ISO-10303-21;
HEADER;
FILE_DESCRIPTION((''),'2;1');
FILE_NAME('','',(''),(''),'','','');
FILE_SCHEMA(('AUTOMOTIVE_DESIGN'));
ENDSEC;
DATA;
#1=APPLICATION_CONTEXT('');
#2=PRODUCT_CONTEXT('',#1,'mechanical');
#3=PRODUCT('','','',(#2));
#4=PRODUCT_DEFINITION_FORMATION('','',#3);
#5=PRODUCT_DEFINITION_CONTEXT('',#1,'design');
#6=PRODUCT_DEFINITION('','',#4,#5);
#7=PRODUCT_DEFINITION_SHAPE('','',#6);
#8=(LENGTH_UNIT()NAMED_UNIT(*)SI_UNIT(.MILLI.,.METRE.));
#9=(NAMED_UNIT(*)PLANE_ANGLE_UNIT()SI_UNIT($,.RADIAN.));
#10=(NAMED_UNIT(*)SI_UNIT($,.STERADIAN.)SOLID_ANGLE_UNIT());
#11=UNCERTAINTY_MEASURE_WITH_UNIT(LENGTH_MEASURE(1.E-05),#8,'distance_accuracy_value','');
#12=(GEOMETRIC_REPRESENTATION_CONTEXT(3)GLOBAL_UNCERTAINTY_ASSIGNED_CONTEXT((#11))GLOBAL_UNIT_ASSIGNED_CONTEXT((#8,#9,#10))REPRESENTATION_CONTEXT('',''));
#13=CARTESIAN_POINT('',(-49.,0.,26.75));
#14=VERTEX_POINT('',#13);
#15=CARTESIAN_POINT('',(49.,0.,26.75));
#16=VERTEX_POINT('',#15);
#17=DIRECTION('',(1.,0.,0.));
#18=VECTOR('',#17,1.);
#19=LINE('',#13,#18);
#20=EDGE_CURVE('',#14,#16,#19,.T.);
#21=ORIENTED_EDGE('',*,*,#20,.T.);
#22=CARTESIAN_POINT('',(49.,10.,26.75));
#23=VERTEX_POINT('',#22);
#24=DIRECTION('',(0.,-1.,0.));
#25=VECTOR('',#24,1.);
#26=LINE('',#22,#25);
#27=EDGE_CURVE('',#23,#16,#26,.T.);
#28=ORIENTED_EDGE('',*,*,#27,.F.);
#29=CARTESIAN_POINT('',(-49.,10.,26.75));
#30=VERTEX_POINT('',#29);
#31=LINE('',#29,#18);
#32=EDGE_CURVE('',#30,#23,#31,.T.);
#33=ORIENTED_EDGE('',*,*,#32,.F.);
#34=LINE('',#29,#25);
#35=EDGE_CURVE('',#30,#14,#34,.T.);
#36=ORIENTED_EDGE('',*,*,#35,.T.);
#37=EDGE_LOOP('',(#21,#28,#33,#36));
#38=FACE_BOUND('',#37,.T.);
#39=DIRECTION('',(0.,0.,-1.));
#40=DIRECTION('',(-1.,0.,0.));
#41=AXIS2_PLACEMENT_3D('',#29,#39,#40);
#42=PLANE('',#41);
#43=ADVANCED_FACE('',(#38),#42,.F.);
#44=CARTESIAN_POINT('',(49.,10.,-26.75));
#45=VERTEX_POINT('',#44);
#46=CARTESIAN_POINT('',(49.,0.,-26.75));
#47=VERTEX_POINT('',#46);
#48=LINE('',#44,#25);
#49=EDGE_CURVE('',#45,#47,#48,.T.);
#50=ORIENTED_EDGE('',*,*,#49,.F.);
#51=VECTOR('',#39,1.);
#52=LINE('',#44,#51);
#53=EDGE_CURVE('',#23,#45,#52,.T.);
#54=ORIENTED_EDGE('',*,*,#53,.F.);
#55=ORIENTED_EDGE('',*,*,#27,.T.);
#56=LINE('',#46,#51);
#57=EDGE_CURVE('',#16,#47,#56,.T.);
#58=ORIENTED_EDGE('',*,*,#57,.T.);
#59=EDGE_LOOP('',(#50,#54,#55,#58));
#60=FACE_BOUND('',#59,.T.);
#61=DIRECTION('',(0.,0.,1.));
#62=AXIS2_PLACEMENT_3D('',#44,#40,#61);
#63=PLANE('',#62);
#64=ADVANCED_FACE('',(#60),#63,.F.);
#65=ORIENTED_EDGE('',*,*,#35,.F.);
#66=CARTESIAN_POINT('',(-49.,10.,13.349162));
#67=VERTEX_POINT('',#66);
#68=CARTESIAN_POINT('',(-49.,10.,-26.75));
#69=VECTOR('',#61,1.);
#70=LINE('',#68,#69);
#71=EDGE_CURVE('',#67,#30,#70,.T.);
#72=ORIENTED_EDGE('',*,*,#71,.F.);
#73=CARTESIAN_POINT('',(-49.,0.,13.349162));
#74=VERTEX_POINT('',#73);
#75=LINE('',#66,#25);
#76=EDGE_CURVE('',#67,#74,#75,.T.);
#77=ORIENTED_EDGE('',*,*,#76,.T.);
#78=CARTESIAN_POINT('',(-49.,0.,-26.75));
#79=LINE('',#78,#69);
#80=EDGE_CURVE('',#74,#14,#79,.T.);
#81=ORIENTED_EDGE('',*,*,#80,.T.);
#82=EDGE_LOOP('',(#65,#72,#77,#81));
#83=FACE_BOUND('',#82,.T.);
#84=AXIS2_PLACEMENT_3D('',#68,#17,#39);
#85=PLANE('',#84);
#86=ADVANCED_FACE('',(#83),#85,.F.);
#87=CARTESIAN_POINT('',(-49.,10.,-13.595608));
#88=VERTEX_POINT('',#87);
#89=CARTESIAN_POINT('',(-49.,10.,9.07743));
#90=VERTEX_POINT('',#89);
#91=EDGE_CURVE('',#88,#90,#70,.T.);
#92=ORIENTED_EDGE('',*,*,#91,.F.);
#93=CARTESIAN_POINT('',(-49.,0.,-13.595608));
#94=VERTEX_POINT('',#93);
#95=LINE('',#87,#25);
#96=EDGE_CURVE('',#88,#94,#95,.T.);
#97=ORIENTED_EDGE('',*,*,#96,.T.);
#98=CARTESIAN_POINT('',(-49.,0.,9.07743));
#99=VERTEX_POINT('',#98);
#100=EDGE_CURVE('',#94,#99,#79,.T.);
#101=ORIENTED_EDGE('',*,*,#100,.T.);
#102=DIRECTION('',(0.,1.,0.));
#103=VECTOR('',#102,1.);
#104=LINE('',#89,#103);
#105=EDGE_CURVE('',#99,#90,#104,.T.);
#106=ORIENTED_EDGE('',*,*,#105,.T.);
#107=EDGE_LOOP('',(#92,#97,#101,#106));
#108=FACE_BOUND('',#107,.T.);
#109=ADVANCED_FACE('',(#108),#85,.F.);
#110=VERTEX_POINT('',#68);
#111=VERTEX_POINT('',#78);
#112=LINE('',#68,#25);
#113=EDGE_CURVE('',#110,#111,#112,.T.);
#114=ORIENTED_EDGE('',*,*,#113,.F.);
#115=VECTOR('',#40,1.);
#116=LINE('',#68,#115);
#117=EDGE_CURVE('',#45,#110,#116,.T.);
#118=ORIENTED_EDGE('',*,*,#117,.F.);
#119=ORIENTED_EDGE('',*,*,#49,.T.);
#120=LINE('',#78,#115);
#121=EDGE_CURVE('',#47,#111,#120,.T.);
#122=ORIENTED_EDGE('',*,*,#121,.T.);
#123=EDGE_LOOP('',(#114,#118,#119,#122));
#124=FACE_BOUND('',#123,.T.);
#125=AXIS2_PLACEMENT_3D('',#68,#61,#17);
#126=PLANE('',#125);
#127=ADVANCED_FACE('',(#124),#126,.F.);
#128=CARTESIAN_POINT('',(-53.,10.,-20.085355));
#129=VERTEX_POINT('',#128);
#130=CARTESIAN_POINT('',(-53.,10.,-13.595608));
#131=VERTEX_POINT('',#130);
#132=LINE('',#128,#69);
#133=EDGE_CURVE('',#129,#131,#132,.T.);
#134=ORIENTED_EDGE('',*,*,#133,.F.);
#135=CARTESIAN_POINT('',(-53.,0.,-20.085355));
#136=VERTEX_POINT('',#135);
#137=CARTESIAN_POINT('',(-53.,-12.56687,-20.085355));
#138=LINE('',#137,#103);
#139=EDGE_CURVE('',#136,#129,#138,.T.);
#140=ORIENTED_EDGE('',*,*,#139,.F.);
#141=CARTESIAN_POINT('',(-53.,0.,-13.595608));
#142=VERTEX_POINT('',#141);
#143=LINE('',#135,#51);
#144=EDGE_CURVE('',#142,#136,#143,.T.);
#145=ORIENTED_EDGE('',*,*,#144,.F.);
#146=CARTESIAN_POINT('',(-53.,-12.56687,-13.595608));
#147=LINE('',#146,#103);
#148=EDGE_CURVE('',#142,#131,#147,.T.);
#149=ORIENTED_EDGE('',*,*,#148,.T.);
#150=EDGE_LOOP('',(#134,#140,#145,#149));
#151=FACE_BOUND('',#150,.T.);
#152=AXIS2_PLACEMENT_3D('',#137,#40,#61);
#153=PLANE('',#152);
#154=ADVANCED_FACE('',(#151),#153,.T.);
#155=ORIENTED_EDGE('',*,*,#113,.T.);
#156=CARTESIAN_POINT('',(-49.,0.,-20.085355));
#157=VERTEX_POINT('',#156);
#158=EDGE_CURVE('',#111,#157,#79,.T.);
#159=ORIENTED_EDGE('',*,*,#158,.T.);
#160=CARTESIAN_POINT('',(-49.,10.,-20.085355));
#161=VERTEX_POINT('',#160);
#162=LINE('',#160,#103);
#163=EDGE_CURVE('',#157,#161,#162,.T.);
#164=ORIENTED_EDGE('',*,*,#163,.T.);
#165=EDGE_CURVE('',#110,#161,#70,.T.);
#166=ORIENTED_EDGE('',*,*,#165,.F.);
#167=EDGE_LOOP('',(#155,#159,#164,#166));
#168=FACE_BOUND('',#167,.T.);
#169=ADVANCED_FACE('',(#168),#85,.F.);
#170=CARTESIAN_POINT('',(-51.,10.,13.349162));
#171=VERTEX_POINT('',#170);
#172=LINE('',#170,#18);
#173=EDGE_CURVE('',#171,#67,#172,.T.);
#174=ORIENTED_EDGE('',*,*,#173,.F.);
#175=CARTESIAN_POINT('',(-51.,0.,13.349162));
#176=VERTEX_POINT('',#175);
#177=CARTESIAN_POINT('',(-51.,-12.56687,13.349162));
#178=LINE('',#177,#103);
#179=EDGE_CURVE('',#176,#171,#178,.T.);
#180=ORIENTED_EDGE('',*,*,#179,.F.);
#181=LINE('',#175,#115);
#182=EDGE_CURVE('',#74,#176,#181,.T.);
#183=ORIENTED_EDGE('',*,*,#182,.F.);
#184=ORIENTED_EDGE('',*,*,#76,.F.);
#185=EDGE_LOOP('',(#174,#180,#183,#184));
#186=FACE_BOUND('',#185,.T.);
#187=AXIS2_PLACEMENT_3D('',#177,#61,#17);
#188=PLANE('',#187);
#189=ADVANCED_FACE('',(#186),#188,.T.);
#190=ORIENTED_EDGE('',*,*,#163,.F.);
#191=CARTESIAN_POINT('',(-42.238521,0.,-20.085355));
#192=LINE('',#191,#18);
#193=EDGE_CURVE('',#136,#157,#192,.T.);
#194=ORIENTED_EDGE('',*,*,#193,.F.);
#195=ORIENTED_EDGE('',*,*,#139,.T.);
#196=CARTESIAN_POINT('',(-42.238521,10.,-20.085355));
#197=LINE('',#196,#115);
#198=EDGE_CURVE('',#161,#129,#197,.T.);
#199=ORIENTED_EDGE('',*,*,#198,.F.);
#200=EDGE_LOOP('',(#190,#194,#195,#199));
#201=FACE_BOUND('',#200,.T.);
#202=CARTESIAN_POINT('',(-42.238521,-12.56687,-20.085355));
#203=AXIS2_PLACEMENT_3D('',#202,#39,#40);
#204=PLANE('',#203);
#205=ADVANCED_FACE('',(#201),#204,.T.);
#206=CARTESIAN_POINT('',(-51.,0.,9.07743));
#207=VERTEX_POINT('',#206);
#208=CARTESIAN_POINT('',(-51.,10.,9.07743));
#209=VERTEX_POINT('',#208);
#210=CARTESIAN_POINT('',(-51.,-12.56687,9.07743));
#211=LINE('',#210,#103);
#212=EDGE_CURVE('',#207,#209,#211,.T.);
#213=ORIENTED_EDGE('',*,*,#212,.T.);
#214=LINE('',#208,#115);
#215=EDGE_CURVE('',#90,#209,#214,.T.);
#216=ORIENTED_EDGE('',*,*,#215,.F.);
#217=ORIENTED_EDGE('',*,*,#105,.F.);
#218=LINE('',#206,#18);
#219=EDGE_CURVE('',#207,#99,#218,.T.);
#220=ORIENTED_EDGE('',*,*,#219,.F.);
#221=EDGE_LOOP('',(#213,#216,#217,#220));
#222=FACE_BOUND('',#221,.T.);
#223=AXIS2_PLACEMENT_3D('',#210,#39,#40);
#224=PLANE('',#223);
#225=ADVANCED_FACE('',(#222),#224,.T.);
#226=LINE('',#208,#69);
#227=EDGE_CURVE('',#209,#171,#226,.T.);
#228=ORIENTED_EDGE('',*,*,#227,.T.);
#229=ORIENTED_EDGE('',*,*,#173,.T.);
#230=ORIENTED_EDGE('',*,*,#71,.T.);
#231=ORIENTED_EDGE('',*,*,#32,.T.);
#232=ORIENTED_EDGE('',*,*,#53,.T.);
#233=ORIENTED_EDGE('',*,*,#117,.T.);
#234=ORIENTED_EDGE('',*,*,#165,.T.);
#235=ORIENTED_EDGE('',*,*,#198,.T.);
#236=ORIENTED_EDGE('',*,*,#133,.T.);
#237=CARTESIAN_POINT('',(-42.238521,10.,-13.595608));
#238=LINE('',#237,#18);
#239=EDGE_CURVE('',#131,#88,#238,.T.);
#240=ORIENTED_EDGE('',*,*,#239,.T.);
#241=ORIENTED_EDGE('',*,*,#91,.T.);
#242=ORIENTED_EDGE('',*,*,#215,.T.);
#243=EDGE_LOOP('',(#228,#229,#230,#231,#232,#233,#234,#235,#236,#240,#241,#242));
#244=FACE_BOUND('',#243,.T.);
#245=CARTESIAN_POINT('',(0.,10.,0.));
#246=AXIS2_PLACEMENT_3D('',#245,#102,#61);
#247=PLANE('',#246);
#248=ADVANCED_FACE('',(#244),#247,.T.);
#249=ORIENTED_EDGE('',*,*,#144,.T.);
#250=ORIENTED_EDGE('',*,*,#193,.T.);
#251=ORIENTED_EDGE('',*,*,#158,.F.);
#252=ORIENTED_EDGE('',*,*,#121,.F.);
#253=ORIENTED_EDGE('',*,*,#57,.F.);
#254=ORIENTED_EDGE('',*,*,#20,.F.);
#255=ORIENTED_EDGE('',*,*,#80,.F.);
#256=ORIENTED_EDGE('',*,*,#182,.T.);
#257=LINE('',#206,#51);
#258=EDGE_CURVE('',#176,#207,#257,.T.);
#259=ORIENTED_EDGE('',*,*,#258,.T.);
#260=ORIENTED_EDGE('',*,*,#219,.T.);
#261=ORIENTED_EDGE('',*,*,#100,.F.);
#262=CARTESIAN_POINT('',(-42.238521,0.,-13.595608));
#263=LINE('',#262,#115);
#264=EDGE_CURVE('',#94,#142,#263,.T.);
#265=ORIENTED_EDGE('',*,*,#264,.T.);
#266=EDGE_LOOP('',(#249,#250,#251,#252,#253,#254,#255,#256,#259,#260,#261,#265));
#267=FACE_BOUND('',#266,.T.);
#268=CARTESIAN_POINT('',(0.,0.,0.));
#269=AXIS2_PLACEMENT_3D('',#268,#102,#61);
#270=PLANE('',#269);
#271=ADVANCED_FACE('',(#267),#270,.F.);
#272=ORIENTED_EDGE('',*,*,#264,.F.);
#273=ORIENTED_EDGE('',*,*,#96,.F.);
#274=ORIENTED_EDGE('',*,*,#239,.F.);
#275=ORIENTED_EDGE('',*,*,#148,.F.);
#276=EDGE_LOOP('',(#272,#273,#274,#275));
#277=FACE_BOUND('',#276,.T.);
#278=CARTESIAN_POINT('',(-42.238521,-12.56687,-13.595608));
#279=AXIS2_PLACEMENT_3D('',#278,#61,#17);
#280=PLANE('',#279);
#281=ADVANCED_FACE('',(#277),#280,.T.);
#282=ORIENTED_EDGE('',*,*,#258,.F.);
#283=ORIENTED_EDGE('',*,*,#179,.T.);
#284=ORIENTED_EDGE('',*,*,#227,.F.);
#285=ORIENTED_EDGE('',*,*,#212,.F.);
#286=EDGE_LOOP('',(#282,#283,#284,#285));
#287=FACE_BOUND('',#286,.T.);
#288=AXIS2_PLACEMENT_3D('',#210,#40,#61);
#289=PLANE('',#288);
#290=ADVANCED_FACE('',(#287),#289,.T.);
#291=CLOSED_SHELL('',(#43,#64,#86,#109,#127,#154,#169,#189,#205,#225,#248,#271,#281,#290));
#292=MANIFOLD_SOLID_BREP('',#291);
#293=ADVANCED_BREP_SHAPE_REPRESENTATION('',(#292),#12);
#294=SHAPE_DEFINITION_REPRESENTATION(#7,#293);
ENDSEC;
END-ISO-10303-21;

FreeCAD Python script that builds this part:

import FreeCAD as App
import Part
import Sketcher
from FreeCAD import Vector
Q = App.Units.Quantity

doc = App.newDocument("Part")
body = doc.addObject("PartDesign::Body", "Body")

# Sketch on XZ plane
sketch1 = body.newObject("Sketcher::SketchObject", "Sketch")
sketch1.AttachmentSupport = (doc.getObject("XZ_Plane"), [""])
sketch1.MapMode = "FlatFace"
sketch1.addGeometry(Part.LineSegment(Vector(-49, -27, 0), Vector(-49, 27, 0)), False)
sketch1.addGeometry(Part.LineSegment(Vector(-49, 27, 0), Vector(49, 27, 0)), False)
sketch1.addGeometry(Part.LineSegment(Vector(49, 27, 0), Vector(49, -27, 0)), False)
sketch1.addGeometry(Part.LineSegment(Vector(49, -27, 0), Vector(-49, -27, 0)), False)
sketch1.addConstraint(Sketcher.Constraint("Coincident", 0, 2, 1, 1))
sketch1.addConstraint(Sketcher.Constraint("Coincident", 1, 2, 2, 1))
sketch1.addConstraint(Sketcher.Constraint("Coincident", 2, 2, 3, 1))
sketch1.addConstraint(Sketcher.Constraint("Coincident", 3, 2, 0, 1))
sketch1.addConstraint(Sketcher.Constraint("Vertical", 0))
sketch1.addConstraint(Sketcher.Constraint("Horizontal", 1))
sketch1.addConstraint(Sketcher.Constraint("Vertical", 2))
sketch1.addConstraint(Sketcher.Constraint("Horizontal", 3))
sketch1.addConstraint(Sketcher.Constraint("Symmetric", 0, 2, 2, 2, -1, 1))
sketch1.addConstraint(Sketcher.Constraint("DistanceX", 1, 1, 1, 2, Q("98 mm")))
sketch1.addConstraint(Sketcher.Constraint("DistanceY", 0, 1, 0, 2, Q("53.5 mm")))
pad1 = body.newObject("PartDesign::Pad", "Pad")
pad1.Profile = sketch1
pad1.Length = 10
pad1.Reversed = True

# Sketch on XZ plane
sketch2 = body.newObject("Sketcher::SketchObject", "Sketch001")
sketch2.AttachmentSupport = (doc.getObject("XZ_Plane"), [""])
sketch2.MapMode = "FlatFace"
sketch2.AttachmentOffset = App.Placement(Vector(0, 0, -10), App.Rotation())
sketch2.addGeometry(Part.LineSegment(Vector(-53, -20.1, 0), Vector(-53, -13.6, 0)), False)
sketch2.addGeometry(Part.LineSegment(Vector(-53, -13.6, 0), Vector(-42.2, -13.6, 0)), False)
sketch2.addGeometry(Part.LineSegment(Vector(-42.2, -13.6, 0), Vector(-42.2, -20.1, 0)), False)
sketch2.addGeometry(Part.LineSegment(Vector(-42.2, -20.1, 0), Vector(-53, -20.1, 0)), False)
sketch2.addGeometry(Part.LineSegment(Vector(-51, 9.1, 0), Vector(-51, 13.3, 0)), False)
sketch2.addGeometry(Part.LineSegment(Vector(-51, 13.3, 0), Vector(-43.7, 13.3, 0)), False)
sketch2.addGeometry(Part.LineSegment(Vector(-43.7, 13.3, 0), Vector(-43.7, 9.1, 0)), False)
sketch2.addGeometry(Part.LineSegment(Vector(-43.7, 9.1, 0), Vector(-51, 9.1, 0)), False)
sketch2.addConstraint(Sketcher.Constraint("Coincident", 0, 2, 1, 1))
sketch2.addConstraint(Sketcher.Constraint("Coincident", 1, 2, 2, 1))
sketch2.addConstraint(Sketcher.Constraint("Coincident", 2, 2, 3, 1))
sketch2.addConstraint(Sketcher.Constraint("Coincident", 3, 2, 0, 1))
sketch2.addConstraint(Sketcher.Constraint("Coincident", 4, 2, 5, 1))
sketch2.addConstraint(Sketcher.Constraint("Coincident", 5, 2, 6, 1))
sketch2.addConstraint(Sketcher.Constraint("Coincident", 6, 2, 7, 1))
sketch2.addConstraint(Sketcher.Constraint("Coincident", 7, 2, 4, 1))
sketch2.addConstraint(Sketcher.Constraint("Vertical", 0))
sketch2.addConstraint(Sketcher.Constraint("Horizontal", 1))
sketch2.addConstraint(Sketcher.Constraint("Vertical", 2))
sketch2.addConstraint(Sketcher.Constraint("Horizontal", 3))
sketch2.addConstraint(Sketcher.Constraint("Vertical", 4))
sketch2.addConstraint(Sketcher.Constraint("Horizontal", 5))
sketch2.addConstraint(Sketcher.Constraint("Vertical", 6))
sketch2.addConstraint(Sketcher.Constraint("Horizontal", 7))
sketch2.addConstraint(Sketcher.Constraint("DistanceX", 0, 2, -1, 1, Q("53 mm")))
sketch2.addConstraint(Sketcher.Constraint("DistanceX", 4, 2, -1, 1, Q("51 mm")))
sketch2.addConstraint(Sketcher.Constraint("DistanceX", 1, 1, 1, 2, Q("10.761479 mm")))
sketch2.addConstraint(Sketcher.Constraint("DistanceY", 4, 1, 4, 2, Q("4.271732 mm")))
sketch2.addConstraint(Sketcher.Constraint("DistanceX", 5, 1, 5, 2, Q("7.311234 mm")))
sketch2.addConstraint(Sketcher.Constraint("DistanceY", 0, 1, 0, 2, Q("6.489747 mm")))
sketch2.addConstraint(Sketcher.Constraint("DistanceY", 0, 2, -1, 1, Q("13.595608 mm")))
sketch2.addConstraint(Sketcher.Constraint("DistanceY", -1, 1, 6, 2, Q("9.07743 mm")))
pad2 = body.newObject("PartDesign::Pad", "Pad001")
pad2.Profile = sketch2
pad2.Length = 10

doc.recompute()
